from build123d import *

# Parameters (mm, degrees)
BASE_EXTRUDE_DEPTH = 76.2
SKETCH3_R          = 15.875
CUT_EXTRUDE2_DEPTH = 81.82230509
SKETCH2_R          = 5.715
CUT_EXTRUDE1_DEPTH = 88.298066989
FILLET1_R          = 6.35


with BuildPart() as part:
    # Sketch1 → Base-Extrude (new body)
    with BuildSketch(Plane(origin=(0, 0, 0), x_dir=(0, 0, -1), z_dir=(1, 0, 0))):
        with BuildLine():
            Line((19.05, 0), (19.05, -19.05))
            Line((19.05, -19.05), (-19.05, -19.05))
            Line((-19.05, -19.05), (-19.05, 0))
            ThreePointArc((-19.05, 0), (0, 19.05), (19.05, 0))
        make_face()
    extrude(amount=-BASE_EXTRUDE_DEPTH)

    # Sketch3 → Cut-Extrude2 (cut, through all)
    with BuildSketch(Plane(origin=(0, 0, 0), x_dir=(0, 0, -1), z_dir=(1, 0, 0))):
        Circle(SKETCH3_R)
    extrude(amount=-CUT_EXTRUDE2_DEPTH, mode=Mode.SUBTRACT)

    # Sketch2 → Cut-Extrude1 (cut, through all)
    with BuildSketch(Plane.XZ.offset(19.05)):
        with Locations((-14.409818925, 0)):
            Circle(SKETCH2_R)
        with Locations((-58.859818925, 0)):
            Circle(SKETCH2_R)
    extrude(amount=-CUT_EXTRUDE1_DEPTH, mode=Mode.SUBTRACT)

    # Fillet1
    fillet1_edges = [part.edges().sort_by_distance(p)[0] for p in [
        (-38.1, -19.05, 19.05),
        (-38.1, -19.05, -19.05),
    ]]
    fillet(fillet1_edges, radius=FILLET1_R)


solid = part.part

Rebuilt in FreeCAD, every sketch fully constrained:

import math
import FreeCAD as App
import Part
import Sketcher
from FreeCAD import Vector
Q = App.Units.Quantity


def edges_at(feature, points):
    """Names of the edges that pass closest to the given points."""
    edges = feature.Shape.Edges
    near = lambda p: min(range(len(edges)), key=lambda i: edges[i].distToShape(Part.Vertex(*p))[0])
    return sorted({f"Edge{near(p) + 1}" for p in points})

doc = App.newDocument("Part")
params = doc.addObject("Spreadsheet::Sheet", "Params")
for row, (alias, value) in enumerate([
    ("sketch1_radius", "0.75 in"),
    ("sketch1_width", "0.75 in"),
    ("pad1_length", "3 in"),
    ("sketch2_diameter", "1.25 in"),
    ("sketch3_diameter", "0.45 in"),
    ("fillet_radius", "0.25 in"),
], start=1):
    params.set(f"A{row}", alias)
    params.set(f"B{row}", "=" + value)
    params.setAlias(f"B{row}", alias)

body = doc.addObject("PartDesign::Body", "Body")

sketch1 = body.newObject("Sketcher::SketchObject", "Sketch")
sketch1.AttachmentSupport = (doc.getObject("YZ_Plane"), [""])
sketch1.MapMode = "FlatFace"
sketch1.addGeometry([
    Part.LineSegment(Vector(-19.05, -19.05, 0), Vector(0, -19.05, 0)),
    Part.ArcOfCircle(Part.Circle(Vector(0, 0, 0), Vector(0, 0, 1), 19.05), math.radians(-90), math.radians(90)),
    Part.LineSegment(Vector(0, 19.05, 0), Vector(-19.05, 19.05, 0)),
    Part.LineSegment(Vector(-19.05, 19.05, 0), Vector(-19.05, -19.05, 0)),
], False)
sketch1.addConstraint([
    Sketcher.Constraint("Tangent", 0, 2, 1, 1),
    Sketcher.Constraint("Tangent", 1, 2, 2, 1),
    Sketcher.Constraint("Coincident", 2, 2, 3, 1),
    Sketcher.Constraint("Coincident", 3, 2, 0, 1),
    Sketcher.Constraint("Horizontal", 0),
    Sketcher.Constraint("Horizontal", 2),
    Sketcher.Constraint("Vertical", 3),
    Sketcher.Constraint("Coincident", 1, 3, -1, 1),
    Sketcher.Constraint("Radius", 1, Q("0.75 in")),
    Sketcher.Constraint("DistanceX", 0, 1, 0, 2, Q("0.75 in")),
])
sketch1.setExpression("Constraints[8]", "Params.sketch1_radius")
sketch1.setExpression("Constraints[9]", "Params.sketch1_width")
pad1 = body.newObject("PartDesign::Pad", "Pad")
pad1.Profile = sketch1
pad1.setExpression("Length", "Params.pad1_length")
pad1.Reversed = True

sketch2 = body.newObject("Sketcher::SketchObject", "Sketch001")
sketch2.AttachmentSupport = (doc.getObject("YZ_Plane"), [""])
sketch2.MapMode = "FlatFace"
sketch2.addGeometry(Part.Circle(Vector(0, 0, 0), Vector(0, 0, 1), 15.875), False)
sketch2.addConstraint([
    Sketcher.Constraint("Coincident", 0, 3, -1, 1),
    Sketcher.Constraint("Diameter", 0, Q("1.25 in")),
])
sketch2.setExpression("Constraints[1]", "Params.sketch2_diameter")
pocket1 = body.newObject("PartDesign::Pocket", "Pocket")
pocket1.Profile = sketch2
pocket1.Type = "ThroughAll"

sketch3 = body.newObject("Sketcher::SketchObject", "Sketch002")
sketch3.AttachmentSupport = (doc.getObject("XZ_Plane"), [""])
sketch3.MapMode = "FlatFace"
sketch3.AttachmentOffset = App.Placement(Vector(0, 0, 0.75 * 25.4), App.Rotation())
sketch3.addGeometry([
    Part.Circle(Vector(-14.409819, 0, 0), Vector(0, 0, 1), 5.715),
    Part.Circle(Vector(-58.859819, 0, 0), Vector(0, 0, 1), 5.715),
], False)
sketch3.addConstraint([
    Sketcher.Constraint("Equal", 0, 1),
    Sketcher.Constraint("PointOnObject", 0, 3, -1),
    Sketcher.Constraint("PointOnObject", 1, 3, -1),
    Sketcher.Constraint("Diameter", 0, Q("0.45 in")),
    Sketcher.Constraint("DistanceX", 1, 3, 0, 3, Q("1.75 in")),
    Sketcher.Constraint("DistanceX", 0, 3, -1, 1, Q("14.409819 mm")),
])
sketch3.setExpression("Constraints[3]", "Params.sketch3_diameter")
pocket2 = body.newObject("PartDesign::Pocket", "Pocket001")
pocket2.Profile = sketch3
pocket2.Type = "ThroughAll"
doc.recompute()

fillet = body.newObject("PartDesign::Fillet", "Fillet")
fillet.Base = (pocket2, edges_at(pocket2, [(-38.1, -19.05, 19.05), (-38.1, -19.05, -19.05)]))
fillet.setExpression("Radius", "Params.fillet_radius")

doc.recompute()
